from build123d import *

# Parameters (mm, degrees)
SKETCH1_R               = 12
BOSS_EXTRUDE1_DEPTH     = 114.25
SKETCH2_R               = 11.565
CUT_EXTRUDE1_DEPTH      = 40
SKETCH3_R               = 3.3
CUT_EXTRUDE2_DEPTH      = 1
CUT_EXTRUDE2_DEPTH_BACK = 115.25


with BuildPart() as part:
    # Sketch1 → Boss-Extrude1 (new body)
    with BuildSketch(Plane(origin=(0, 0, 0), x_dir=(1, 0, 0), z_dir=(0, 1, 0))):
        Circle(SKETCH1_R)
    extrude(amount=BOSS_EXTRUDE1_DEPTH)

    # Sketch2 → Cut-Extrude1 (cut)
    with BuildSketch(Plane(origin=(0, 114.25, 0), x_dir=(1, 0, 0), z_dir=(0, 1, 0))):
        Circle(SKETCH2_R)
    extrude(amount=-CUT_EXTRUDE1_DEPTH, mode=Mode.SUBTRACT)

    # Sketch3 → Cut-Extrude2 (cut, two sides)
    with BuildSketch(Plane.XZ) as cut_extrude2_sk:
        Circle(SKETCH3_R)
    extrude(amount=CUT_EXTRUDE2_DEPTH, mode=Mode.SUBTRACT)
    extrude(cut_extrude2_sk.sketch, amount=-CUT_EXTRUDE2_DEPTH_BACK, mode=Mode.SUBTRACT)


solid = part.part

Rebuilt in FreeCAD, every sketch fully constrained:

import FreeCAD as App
import Part
import Sketcher
from FreeCAD import Vector

doc = App.newDocument("Part")
body = doc.addObject("PartDesign::Body", "Body")

sketch1 = body.newObject("Sketcher::SketchObject", "Sketch")
sketch1.AttachmentSupport = (doc.getObject("XZ_Plane"), [""])
sketch1.MapMode = "FlatFace"
sketch1.addGeometry(Part.Circle(Vector(0, 0, 0), Vector(0, 0, 1), 12), False)
sketch1.addConstraint([
    Sketcher.Constraint("Coincident", 0, 3, -1, 1),
    Sketcher.Constraint("Diameter", 0, 24.0),
])
pad1 = body.newObject("PartDesign::Pad", "Pad")
pad1.Profile = sketch1
pad1.Length = 114.25
pad1.Reversed = True

sketch2 = body.newObject("Sketcher::SketchObject", "Sketch001")
sketch2.AttachmentSupport = (doc.getObject("XZ_Plane"), [""])
sketch2.MapMode = "FlatFace"
sketch2.AttachmentOffset = App.Placement(Vector(0, 0, -114.25), App.Rotation())
sketch2.addGeometry(Part.Circle(Vector(0, 0, 0), Vector(0, 0, 1), 12), False)
sketch2.addConstraint([
    Sketcher.Constraint("Coincident", 0, 3, -1, 1),
    Sketcher.Constraint("Diameter", 0, 23.13),
])
pocket1 = body.newObject("PartDesign::Pocket", "Pocket")
pocket1.Profile = sketch2
pocket1.Length = 40
pocket1.Reversed = True

sketch3 = body.newObject("Sketcher::SketchObject", "Sketch002")
sketch3.AttachmentSupport = (doc.getObject("XZ_Plane"), [""])
sketch3.MapMode = "FlatFace"
sketch3.addGeometry(Part.Circle(Vector(0, 0, 0), Vector(0, 0, 1), 3.3), False)
sketch3.addConstraint([
    Sketcher.Constraint("Coincident", 0, 3, -1, 1),
    Sketcher.Constraint("Diameter", 0, 6.6),
])
pocket2 = body.newObject("PartDesign::Pocket", "Pocket001")
pocket2.Profile = sketch3
pocket2.Type = "ThroughAll"
pocket2.Midplane = True

doc.recompute()
